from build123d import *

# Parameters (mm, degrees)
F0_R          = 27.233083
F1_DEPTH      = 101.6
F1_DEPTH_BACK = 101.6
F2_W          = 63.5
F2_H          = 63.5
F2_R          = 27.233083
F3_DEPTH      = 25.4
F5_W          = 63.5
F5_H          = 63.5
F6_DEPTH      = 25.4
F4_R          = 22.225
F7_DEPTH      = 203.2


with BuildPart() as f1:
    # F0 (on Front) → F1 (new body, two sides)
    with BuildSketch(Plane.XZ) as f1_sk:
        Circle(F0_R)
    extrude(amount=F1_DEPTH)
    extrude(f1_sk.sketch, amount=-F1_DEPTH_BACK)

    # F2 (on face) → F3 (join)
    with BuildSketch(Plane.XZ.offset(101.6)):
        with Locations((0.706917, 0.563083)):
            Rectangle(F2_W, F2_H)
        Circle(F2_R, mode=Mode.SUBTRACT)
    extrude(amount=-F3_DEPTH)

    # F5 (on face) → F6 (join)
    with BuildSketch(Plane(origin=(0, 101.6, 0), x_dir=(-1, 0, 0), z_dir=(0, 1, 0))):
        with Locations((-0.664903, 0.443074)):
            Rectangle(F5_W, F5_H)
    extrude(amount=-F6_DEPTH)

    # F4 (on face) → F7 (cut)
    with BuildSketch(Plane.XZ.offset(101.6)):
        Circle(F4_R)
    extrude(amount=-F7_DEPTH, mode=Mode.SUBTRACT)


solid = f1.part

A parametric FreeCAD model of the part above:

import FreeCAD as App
import Part
import Sketcher

V = App.Vector
Q = App.Units.Quantity


def add_polygon(sketch, points):
    """Adds a closed chain of lines whose ends are joined by coincident constraints."""
    first, n = sketch.GeometryCount, len(points)
    for a, b in zip(points, points[1:] + points[:1]):
        sketch.addGeometry(Part.LineSegment(App.Vector(*a, 0), App.Vector(*b, 0)), False)
    for i in range(n):
        sketch.addConstraint(Sketcher.Constraint("Coincident", first + i, 2, first + (i + 1) % n, 1))

doc = App.newDocument("Part")
body = doc.addObject("PartDesign::Body", "Body")

# Sketch on XZ plane
sketch1 = doc.addObject("Sketcher::SketchObject", "Sketch")
body.addObject(sketch1)
sketch1.AttachmentSupport = (doc.XZ_Plane, [""])
sketch1.MapMode = "FlatFace"
sketch1.addGeometry(Part.Circle(V(0, 0, 0), V(0, 0, 1), 27), False)
sketch1.addConstraint(Sketcher.Constraint("Coincident", 0, 3, -1, 1))
sketch1.addConstraint(Sketcher.Constraint("Diameter", 0, 54.466166))
pad1 = doc.addObject("PartDesign::Pad", "Pad")
body.addObject(pad1)
pad1.Profile = sketch1
pad1.Type = "TwoLengths"
pad1.Length = Q("4 in")
pad1.Length2 = Q("4 in")

# Sketch on XZ plane
sketch2 = doc.addObject("Sketcher::SketchObject", "Sketch001")
body.addObject(sketch2)
sketch2.AttachmentSupport = (doc.XZ_Plane, [""])
sketch2.MapMode = "FlatFace"
sketch2.AttachmentOffset = App.Placement(V(0, 0, 4 * 25.4), App.Rotation())
add_polygon(sketch2, [(-31, 32), (-31, -31), (32, -31), (32, 32)])  # lines 0-3
sketch2.addGeometry(Part.Circle(V(0, 0, 0), V(0, 0, 1), 27), False)  # 4
sketch2.addConstraint(Sketcher.Constraint("Vertical", 0))
sketch2.addConstraint(Sketcher.Constraint("Horizontal", 1))
sketch2.addConstraint(Sketcher.Constraint("Vertical", 2))
sketch2.addConstraint(Sketcher.Constraint("Horizontal", 3))
sketch2.addConstraint(Sketcher.Constraint("Coincident", 4, 3, -1, 1))
sketch2.addConstraint(Sketcher.Constraint("Equal", 3, 0))
sketch2.addConstraint(Sketcher.Constraint("DistanceX", 1, 1, 1, 2, Q("2.5 in")))
sketch2.addConstraint(Sketcher.Constraint("Diameter", 4, 54.466166))
sketch2.addConstraint(Sketcher.Constraint("DistanceX", 0, 2, -1, 1, 31.043083))
sketch2.addConstraint(Sketcher.Constraint("DistanceY", 0, 2, -1, 1, 31.186917))
pad2 = doc.addObject("PartDesign::Pad", "Pad001")
body.addObject(pad2)
pad2.Profile = sketch2
pad2.Length = Q("1 in")
pad2.Reversed = True

# Sketch on XZ plane
sketch3 = doc.addObject("Sketcher::SketchObject", "Sketch002")
body.addObject(sketch3)
sketch3.AttachmentSupport = (doc.XZ_Plane, [""])
sketch3.MapMode = "FlatFace"
sketch3.AttachmentOffset = App.Placement(V(0, 0, -4 * 25.4), App.Rotation())
add_polygon(sketch3, [(32, 32), (32, -31), (-31, -31), (-31, 32)])  # lines 0-3
sketch3.addConstraint(Sketcher.Constraint("Vertical", 0))
sketch3.addConstraint(Sketcher.Constraint("Horizontal", 1))
sketch3.addConstraint(Sketcher.Constraint("Vertical", 2))
sketch3.addConstraint(Sketcher.Constraint("Horizontal", 3))
sketch3.addConstraint(Sketcher.Constraint("Equal", 3, 0))
sketch3.addConstraint(Sketcher.Constraint("DistanceX", 1, 2, 1, 1, Q("2.5 in")))
sketch3.addConstraint(Sketcher.Constraint("DistanceX", -1, 1, 0, 2, 32.414903))
sketch3.addConstraint(Sketcher.Constraint("DistanceY", 0, 2, -1, 1, 31.306926))
pad3 = doc.addObject("PartDesign::Pad", "Pad002")
body.addObject(pad3)
pad3.Profile = sketch3
pad3.Length = Q("1 in")

# Sketch on XZ plane
sketch4 = doc.addObject("Sketcher::SketchObject", "Sketch003")
body.addObject(sketch4)
sketch4.AttachmentSupport = (doc.XZ_Plane, [""])
sketch4.MapMode = "FlatFace"
sketch4.AttachmentOffset = App.Placement(V(0, 0, 4 * 25.4), App.Rotation())
sketch4.addGeometry(Part.Circle(V(0, 0, 0), V(0, 0, 1), 22), False)
sketch4.addConstraint(Sketcher.Constraint("Coincident", 0, 3, -1, 1))
sketch4.addConstraint(Sketcher.Constraint("Diameter", 0, Q("1.75 in")))
pocket1 = doc.addObject("PartDesign::Pocket", "Pocket")
body.addObject(pocket1)
pocket1.Profile = sketch4
pocket1.Length = Q("8 in")

doc.recompute()
